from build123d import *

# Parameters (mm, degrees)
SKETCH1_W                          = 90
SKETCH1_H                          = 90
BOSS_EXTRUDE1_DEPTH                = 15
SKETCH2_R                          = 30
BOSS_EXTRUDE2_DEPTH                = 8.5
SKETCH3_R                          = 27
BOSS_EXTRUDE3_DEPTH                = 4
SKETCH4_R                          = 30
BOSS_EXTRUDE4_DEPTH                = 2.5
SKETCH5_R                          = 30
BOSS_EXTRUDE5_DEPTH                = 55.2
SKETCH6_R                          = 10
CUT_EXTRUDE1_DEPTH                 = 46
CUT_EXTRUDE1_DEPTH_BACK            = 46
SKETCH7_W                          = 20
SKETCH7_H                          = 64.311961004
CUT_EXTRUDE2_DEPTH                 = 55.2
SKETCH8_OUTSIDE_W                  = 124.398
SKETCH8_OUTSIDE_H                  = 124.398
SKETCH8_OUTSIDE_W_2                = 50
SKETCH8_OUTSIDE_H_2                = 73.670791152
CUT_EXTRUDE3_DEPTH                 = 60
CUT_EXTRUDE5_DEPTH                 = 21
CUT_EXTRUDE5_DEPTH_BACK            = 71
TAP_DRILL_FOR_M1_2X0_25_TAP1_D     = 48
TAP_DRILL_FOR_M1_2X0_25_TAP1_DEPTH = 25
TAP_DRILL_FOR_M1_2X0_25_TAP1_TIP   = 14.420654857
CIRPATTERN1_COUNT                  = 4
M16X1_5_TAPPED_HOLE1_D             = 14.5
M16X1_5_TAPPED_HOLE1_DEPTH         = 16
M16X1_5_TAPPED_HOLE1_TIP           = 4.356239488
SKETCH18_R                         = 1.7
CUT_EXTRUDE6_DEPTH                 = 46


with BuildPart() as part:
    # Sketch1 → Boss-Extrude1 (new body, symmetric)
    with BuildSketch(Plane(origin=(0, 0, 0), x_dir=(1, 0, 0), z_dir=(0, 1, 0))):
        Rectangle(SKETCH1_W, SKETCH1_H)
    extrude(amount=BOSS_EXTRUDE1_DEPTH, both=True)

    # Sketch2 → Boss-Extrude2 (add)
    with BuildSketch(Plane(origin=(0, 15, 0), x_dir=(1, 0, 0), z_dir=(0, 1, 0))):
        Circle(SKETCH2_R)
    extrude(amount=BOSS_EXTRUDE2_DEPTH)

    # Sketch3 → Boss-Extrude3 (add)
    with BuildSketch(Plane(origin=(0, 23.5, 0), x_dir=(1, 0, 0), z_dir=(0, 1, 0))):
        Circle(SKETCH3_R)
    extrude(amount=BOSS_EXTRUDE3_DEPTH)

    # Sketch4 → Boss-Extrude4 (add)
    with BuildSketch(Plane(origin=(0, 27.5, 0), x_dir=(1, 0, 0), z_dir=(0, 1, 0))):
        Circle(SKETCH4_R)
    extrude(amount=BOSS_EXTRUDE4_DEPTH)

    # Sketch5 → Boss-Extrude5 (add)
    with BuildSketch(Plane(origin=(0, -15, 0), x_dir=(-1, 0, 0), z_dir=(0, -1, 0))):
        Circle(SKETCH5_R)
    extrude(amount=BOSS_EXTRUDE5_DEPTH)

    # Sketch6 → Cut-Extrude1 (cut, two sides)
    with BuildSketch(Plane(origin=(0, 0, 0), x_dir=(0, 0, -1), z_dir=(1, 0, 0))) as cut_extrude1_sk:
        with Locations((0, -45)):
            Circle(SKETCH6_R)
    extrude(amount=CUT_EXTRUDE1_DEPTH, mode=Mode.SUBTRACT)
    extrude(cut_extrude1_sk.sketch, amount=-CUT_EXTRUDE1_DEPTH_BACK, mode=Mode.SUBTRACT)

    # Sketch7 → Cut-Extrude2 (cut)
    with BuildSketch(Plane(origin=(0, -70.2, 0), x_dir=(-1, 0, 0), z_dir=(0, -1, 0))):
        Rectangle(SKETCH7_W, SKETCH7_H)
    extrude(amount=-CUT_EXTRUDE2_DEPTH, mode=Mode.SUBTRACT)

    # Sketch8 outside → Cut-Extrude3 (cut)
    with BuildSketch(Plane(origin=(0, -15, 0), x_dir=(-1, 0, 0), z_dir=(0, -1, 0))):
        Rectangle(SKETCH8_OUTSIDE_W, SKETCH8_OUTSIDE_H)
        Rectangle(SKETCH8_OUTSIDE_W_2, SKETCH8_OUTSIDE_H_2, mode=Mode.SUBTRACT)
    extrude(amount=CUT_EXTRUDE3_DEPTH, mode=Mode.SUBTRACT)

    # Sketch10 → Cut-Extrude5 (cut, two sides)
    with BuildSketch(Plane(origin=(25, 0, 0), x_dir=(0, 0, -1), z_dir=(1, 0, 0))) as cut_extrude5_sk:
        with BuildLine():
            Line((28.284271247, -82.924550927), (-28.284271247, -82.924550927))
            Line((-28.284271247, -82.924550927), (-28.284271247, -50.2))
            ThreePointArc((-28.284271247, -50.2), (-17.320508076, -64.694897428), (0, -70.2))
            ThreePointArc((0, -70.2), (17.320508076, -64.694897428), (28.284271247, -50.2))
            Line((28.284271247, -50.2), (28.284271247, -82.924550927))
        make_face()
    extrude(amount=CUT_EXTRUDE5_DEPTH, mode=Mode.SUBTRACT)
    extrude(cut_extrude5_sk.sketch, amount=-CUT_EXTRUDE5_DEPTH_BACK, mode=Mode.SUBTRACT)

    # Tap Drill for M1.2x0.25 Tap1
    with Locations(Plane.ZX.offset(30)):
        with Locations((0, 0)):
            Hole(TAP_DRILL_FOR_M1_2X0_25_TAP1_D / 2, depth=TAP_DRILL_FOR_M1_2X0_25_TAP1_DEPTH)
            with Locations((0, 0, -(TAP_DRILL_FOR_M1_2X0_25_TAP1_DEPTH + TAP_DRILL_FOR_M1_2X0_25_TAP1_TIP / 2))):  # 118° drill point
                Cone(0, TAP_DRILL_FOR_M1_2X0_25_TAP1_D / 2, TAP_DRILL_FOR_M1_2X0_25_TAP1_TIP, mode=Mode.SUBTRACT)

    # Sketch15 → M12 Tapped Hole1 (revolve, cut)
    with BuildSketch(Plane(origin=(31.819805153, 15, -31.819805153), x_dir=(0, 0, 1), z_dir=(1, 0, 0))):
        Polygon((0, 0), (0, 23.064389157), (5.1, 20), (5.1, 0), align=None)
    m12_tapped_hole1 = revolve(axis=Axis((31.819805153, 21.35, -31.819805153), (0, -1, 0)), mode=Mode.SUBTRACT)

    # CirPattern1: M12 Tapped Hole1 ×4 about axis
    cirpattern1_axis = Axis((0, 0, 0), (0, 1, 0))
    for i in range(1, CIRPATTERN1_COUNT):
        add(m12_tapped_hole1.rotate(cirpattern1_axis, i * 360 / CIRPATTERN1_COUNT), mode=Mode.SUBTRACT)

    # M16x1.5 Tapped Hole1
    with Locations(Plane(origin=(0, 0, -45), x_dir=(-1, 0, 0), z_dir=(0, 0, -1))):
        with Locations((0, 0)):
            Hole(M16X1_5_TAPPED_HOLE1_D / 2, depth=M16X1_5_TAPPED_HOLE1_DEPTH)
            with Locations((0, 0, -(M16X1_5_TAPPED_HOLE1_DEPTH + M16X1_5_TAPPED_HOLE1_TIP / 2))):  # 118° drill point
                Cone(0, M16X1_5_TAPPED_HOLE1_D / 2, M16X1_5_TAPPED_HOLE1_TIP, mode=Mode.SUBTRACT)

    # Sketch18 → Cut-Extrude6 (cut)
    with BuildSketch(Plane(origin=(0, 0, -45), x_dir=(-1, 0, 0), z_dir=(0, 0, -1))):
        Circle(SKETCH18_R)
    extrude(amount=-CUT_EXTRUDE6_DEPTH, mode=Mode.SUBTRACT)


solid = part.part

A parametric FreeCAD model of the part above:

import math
import FreeCAD as App
import Part
import Sketcher
from FreeCAD import Vector
Q = App.Units.Quantity

doc = App.newDocument("Part")
body = doc.addObject("PartDesign::Body", "Body")

# Sketch on XZ plane
sketch1 = body.newObject("Sketcher::SketchObject", "Sketch")
sketch1.AttachmentSupport = (doc.getObject("XZ_Plane"), [""])
sketch1.MapMode = "FlatFace"
sketch1.addGeometry([
    Part.LineSegment(Vector(-45, -45, 0), Vector(-45, 45, 0)),
    Part.LineSegment(Vector(-45, 45, 0), Vector(45, 45, 0)),
    Part.LineSegment(Vector(45, 45, 0), Vector(45, -45, 0)),
    Part.LineSegment(Vector(45, -45, 0), Vector(-45, -45, 0)),
], False)
sketch1.addConstraint([
    Sketcher.Constraint("Coincident", 0, 2, 1, 1),
    Sketcher.Constraint("Coincident", 1, 2, 2, 1),
    Sketcher.Constraint("Coincident", 2, 2, 3, 1),
    Sketcher.Constraint("Coincident", 3, 2, 0, 1),
    Sketcher.Constraint("Vertical", 0),
    Sketcher.Constraint("Horizontal", 1),
    Sketcher.Constraint("Vertical", 2),
    Sketcher.Constraint("Horizontal", 3),
    Sketcher.Constraint("Symmetric", 0, 2, 2, 2, -1, 1),
    Sketcher.Constraint("Equal", 3, 0),
    Sketcher.Constraint("DistanceX", 1, 1, 1, 2, Q("90 mm")),
])
pad1 = body.newObject("PartDesign::Pad", "Pad")
pad1.Profile = sketch1
pad1.Length = 30
pad1.Midplane = True

# Sketch on XZ plane
sketch2 = body.newObject("Sketcher::SketchObject", "Sketch001")
sketch2.AttachmentSupport = (doc.getObject("XZ_Plane"), [""])
sketch2.MapMode = "FlatFace"
sketch2.AttachmentOffset = App.Placement(Vector(0, 0, -15), App.Rotation())
sketch2.addGeometry(Part.Circle(Vector(0, 0, 0), Vector(0, 0, 1), 30), False)
sketch2.addConstraint([
    Sketcher.Constraint("Coincident", 0, 3, -1, 1),
    Sketcher.Constraint("Diameter", 0, Q("60 mm")),
])
pad2 = body.newObject("PartDesign::Pad", "Pad001")
pad2.Profile = sketch2
pad2.Length = 8.5
pad2.Reversed = True

# Sketch on XZ plane
sketch3 = body.newObject("Sketcher::SketchObject", "Sketch002")
sketch3.AttachmentSupport = (doc.getObject("XZ_Plane"), [""])
sketch3.MapMode = "FlatFace"
sketch3.AttachmentOffset = App.Placement(Vector(0, 0, -23.5), App.Rotation())
sketch3.addGeometry(Part.Circle(Vector(0, 0, 0), Vector(0, 0, 1), 27), False)
sketch3.addConstraint([
    Sketcher.Constraint("Coincident", 0, 3, -1, 1),
    Sketcher.Constraint("Diameter", 0, Q("54 mm")),
])
pad3 = body.newObject("PartDesign::Pad", "Pad002")
pad3.Profile = sketch3
pad3.Length = 4
pad3.Reversed = True

# Sketch on XZ plane
sketch4 = body.newObject("Sketcher::SketchObject", "Sketch003")
sketch4.AttachmentSupport = (doc.getObject("XZ_Plane"), [""])
sketch4.MapMode = "FlatFace"
sketch4.AttachmentOffset = App.Placement(Vector(0, 0, -27.5), App.Rotation())
sketch4.addGeometry(Part.Circle(Vector(0, 0, 0), Vector(0, 0, 1), 30), False)
sketch4.addConstraint([
    Sketcher.Constraint("Coincident", 0, 3, -1, 1),
    Sketcher.Constraint("Diameter", 0, Q("60 mm")),
])
pad4 = body.newObject("PartDesign::Pad", "Pad003")
pad4.Profile = sketch4
pad4.Length = 2.5
pad4.Reversed = True

# Sketch on XZ plane
sketch5 = body.newObject("Sketcher::SketchObject", "Sketch004")
sketch5.AttachmentSupport = (doc.getObject("XZ_Plane"), [""])
sketch5.MapMode = "FlatFace"
sketch5.AttachmentOffset = App.Placement(Vector(0, 0, 15), App.Rotation())
sketch5.addGeometry(Part.Circle(Vector(0, 0, 0), Vector(0, 0, 1), 30), False)
sketch5.addConstraint([
    Sketcher.Constraint("Coincident", 0, 3, -1, 1),
    Sketcher.Constraint("Diameter", 0, Q("60 mm")),
])
pad5 = body.newObject("PartDesign::Pad", "Pad004")
pad5.Profile = sketch5
pad5.Length = 55.2

# Sketch on YZ plane
sketch6 = body.newObject("Sketcher::SketchObject", "Sketch005")
sketch6.AttachmentSupport = (doc.getObject("YZ_Plane"), [""])
sketch6.MapMode = "FlatFace"
sketch6.addGeometry(Part.Circle(Vector(-45, 0, 0), Vector(0, 0, 1), 10), False)
sketch6.addConstraint([
    Sketcher.Constraint("PointOnObject", 0, 3, -1),
    Sketcher.Constraint("Diameter", 0, Q("20 mm")),
    Sketcher.Constraint("DistanceX", 0, 3, -1, 1, Q("45 mm")),
])
pocket1 = body.newObject("PartDesign::Pocket", "Pocket")
pocket1.Profile = sketch6
pocket1.Type = "ThroughAll"
pocket1.Midplane = True

# Sketch on XZ plane
sketch7 = body.newObject("Sketcher::SketchObject", "Sketch006")
sketch7.AttachmentSupport = (doc.getObject("XZ_Plane"), [""])
sketch7.MapMode = "FlatFace"
sketch7.AttachmentOffset = App.Placement(Vector(0, 0, 70.2), App.Rotation())
sketch7.addGeometry([
    Part.LineSegment(Vector(10, -32, 0), Vector(10, 32, 0)),
    Part.LineSegment(Vector(10, 32, 0), Vector(-10, 32, 0)),
    Part.LineSegment(Vector(-10, 32, 0), Vector(-10, -32, 0)),
    Part.LineSegment(Vector(-10, -32, 0), Vector(10, -32, 0)),
], False)
sketch7.addConstraint([
    Sketcher.Constraint("Coincident", 0, 2, 1, 1),
    Sketcher.Constraint("Coincident", 1, 2, 2, 1),
    Sketcher.Constraint("Coincident", 2, 2, 3, 1),
    Sketcher.Constraint("Coincident", 3, 2, 0, 1),
    Sketcher.Constraint("Vertical", 0),
    Sketcher.Constraint("Horizontal", 1),
    Sketcher.Constraint("Vertical", 2),
    Sketcher.Constraint("Horizontal", 3),
    Sketcher.Constraint("Symmetric", 0, 2, 2, 2, -1, 1),
    Sketcher.Constraint("DistanceX", 1, 2, 1, 1, Q("20 mm")),
    Sketcher.Constraint("DistanceY", 0, 1, 0, 2, Q("64.311961 mm")),
])
pocket2 = body.newObject("PartDesign::Pocket", "Pocket001")
pocket2.Profile = sketch7
pocket2.Length = 55.2

# Sketch on XZ plane
sketch8 = body.newObject("Sketcher::SketchObject", "Sketch007")
sketch8.AttachmentSupport = (doc.getObject("XZ_Plane"), [""])
sketch8.MapMode = "FlatFace"
sketch8.AttachmentOffset = App.Placement(Vector(0, 0, 15), App.Rotation())
sketch8.addGeometry([
    Part.LineSegment(Vector(62, -62, 0), Vector(62, 62, 0)),  # 0
    Part.LineSegment(Vector(62, 62, 0), Vector(-62, 62, 0)),  # 1
    Part.LineSegment(Vector(-62, 62, 0), Vector(-62, -62, 0)),  # 2
    Part.LineSegment(Vector(-62, -62, 0), Vector(62, -62, 0)),  # 3
    Part.LineSegment(Vector(-25, 37, 0), Vector(25, 37, 0)),  # 4
    Part.LineSegment(Vector(25, 37, 0), Vector(25, -37, 0)),  # 5
    Part.LineSegment(Vector(25, -37, 0), Vector(-25, -37, 0)),  # 6
    Part.LineSegment(Vector(-25, -37, 0), Vector(-25, 37, 0)),  # 7
], False)
sketch8.addConstraint([
    Sketcher.Constraint("Coincident", 0, 2, 1, 1),
    Sketcher.Constraint("Coincident", 1, 2, 2, 1),
    Sketcher.Constraint("Coincident", 2, 2, 3, 1),
    Sketcher.Constraint("Coincident", 3, 2, 0, 1),
    Sketcher.Constraint("Coincident", 4, 2, 5, 1),
    Sketcher.Constraint("Coincident", 5, 2, 6, 1),
    Sketcher.Constraint("Coincident", 6, 2, 7, 1),
    Sketcher.Constraint("Coincident", 7, 2, 4, 1),
    Sketcher.Constraint("Vertical", 0),
    Sketcher.Constraint("Horizontal", 1),
    Sketcher.Constraint("Vertical", 2),
    Sketcher.Constraint("Horizontal", 3),
    Sketcher.Constraint("Horizontal", 4),
    Sketcher.Constraint("Vertical", 5),
    Sketcher.Constraint("Horizontal", 6),
    Sketcher.Constraint("Vertical", 7),
    Sketcher.Constraint("Symmetric", 0, 2, 2, 2, -1, 1),
    Sketcher.Constraint("Symmetric", 4, 2, 6, 2, -1, 1),
    Sketcher.Constraint("Equal", 3, 0),
    Sketcher.Constraint("DistanceX", 4, 1, 4, 2, Q("50 mm")),
    Sketcher.Constraint("DistanceX", 1, 2, 1, 1, Q("124.398 mm")),
    Sketcher.Constraint("DistanceY", 5, 2, 5, 1, Q("73.670791 mm")),
])
pocket3 = body.newObject("PartDesign::Pocket", "Pocket002")
pocket3.Profile = sketch8
pocket3.Length = 60
pocket3.Reversed = True

# Sketch on YZ plane
sketch9 = body.newObject("Sketcher::SketchObject", "Sketch008")
sketch9.AttachmentSupport = (doc.getObject("YZ_Plane"), [""])
sketch9.MapMode = "FlatFace"
sketch9.AttachmentOffset = App.Placement(Vector(0, 0, 25), App.Rotation())
sketch9.addGeometry([
    Part.LineSegment(Vector(-83, 28, 0), Vector(-83, -28, 0)),  # 0
    Part.LineSegment(Vector(-83, -28, 0), Vector(-50, -28, 0)),  # 1
    Part.ArcOfCircle(Part.Circle(Vector(-40, 0, 0), Vector(0, 0, 1), 30), math.radians(180), math.radians(251)),  # 2
    Part.ArcOfCircle(Part.Circle(Vector(-40, 0, 0), Vector(0, 0, 1), 30), math.radians(109), math.radians(180)),  # 3
    Part.LineSegment(Vector(-50, 28, 0), Vector(-83, 28, 0)),  # 4
], False)
sketch9.addConstraint([
    Sketcher.Constraint("Coincident", 0, 2, 1, 1),
    Sketcher.Constraint("Coincident", 1, 2, 2, 2),
    Sketcher.Constraint("Tangent", 2, 1, 3, 2),
    Sketcher.Constraint("Coincident", 3, 1, 4, 1),
    Sketcher.Constraint("Coincident", 4, 2, 0, 1),
    Sketcher.Constraint("Vertical", 0),
    Sketcher.Constraint("Horizontal", 1),
    Sketcher.Constraint("Horizontal", 4),
    Sketcher.Constraint("Equal", 2, 3),
    Sketcher.Constraint("Symmetric", 1, 2, 3, 1, -1),
    Sketcher.Constraint("PointOnObject", 2, 1, -1),
    Sketcher.Constraint("Radius", 2, Q("30 mm")),
    Sketcher.Constraint("DistanceX", 1, 2, 2, 3, Q("10 mm")),
    Sketcher.Constraint("DistanceX", 2, 3, -1, 1, Q("40.2 mm")),
    Sketcher.Constraint("DistanceX", 1, 1, 1, 2, Q("32.724551 mm")),
])
pocket4 = body.newObject("PartDesign::Pocket", "Pocket003")
pocket4.Profile = sketch9
pocket4.Type = "ThroughAll"
pocket4.Midplane = True

# Sketch on XZ plane
sketch10 = body.newObject("Sketcher::SketchObject", "Sketch009")
sketch10.AttachmentSupport = (doc.getObject("XZ_Plane"), [""])
sketch10.MapMode = "FlatFace"
sketch10.AttachmentOffset = App.Placement(Vector(0, 0, -30), App.Rotation())
sketch10.addGeometry(Part.Circle(Vector(0, 0, 0), Vector(0, 0, 1), 24), False)
sketch10.addConstraint([
    Sketcher.Constraint("Coincident", 0, 3, -1, 1),
    Sketcher.Constraint("Diameter", 0, Q("48 mm")),
])
doc.recompute()
hole = body.newObject("PartDesign::Hole", "Hole")
hole.Profile = sketch10
hole.ThreadType = "None"
hole.Diameter = 48
hole.DepthType = "Dimension"
hole.Depth = 25
hole.DrillPoint = "Angled"
hole.DrillPointAngle = 118
hole.Reversed = True

# Sketch on YZ plane
sketch11 = body.newObject("Sketcher::SketchObject", "Sketch010")
sketch11.AttachmentSupport = (doc.getObject("YZ_Plane"), [""])
sketch11.MapMode = "FlatFace"
sketch11.AttachmentOffset = App.Placement(Vector(0, 0, 31.819805), App.Rotation())
sketch11.addGeometry([
    Part.LineSegment(Vector(-8, -32, 0), Vector(15, -32, 0)),
    Part.LineSegment(Vector(15, -32, 0), Vector(15, -27, 0)),
    Part.LineSegment(Vector(15, -27, 0), Vector(-5, -27, 0)),
    Part.LineSegment(Vector(-5, -27, 0), Vector(-8, -32, 0)),
], False)
sketch11.addGeometry(Part.LineSegment(Vector(15, -32, 0), Vector(-8, -32, 0)), True)  # axis
sketch11.addConstraint([
    Sketcher.Constraint("Coincident", 0, 2, 1, 1),
    Sketcher.Constraint("Coincident", 1, 2, 2, 1),
    Sketcher.Constraint("Coincident", 2, 2, 3, 1),
    Sketcher.Constraint("Coincident", 3, 2, 0, 1),
    Sketcher.Constraint("Horizontal", 0),
    Sketcher.Constraint("Vertical", 1),
    Sketcher.Constraint("Horizontal", 2),
    Sketcher.Constraint("Horizontal", 4),
    Sketcher.Constraint("Coincident", 4, 1, 0, 2),
    Sketcher.Constraint("Equal", 0, 4),
    Sketcher.Constraint("DistanceX", 2, 2, 2, 1, Q("20 mm")),
    Sketcher.Constraint("Angle", 3, Q("-121 deg")),
    Sketcher.Constraint("DistanceY", 1, 1, 1, 2, Q("5.1 mm")),
    Sketcher.Constraint("DistanceX", -1, 1, 0, 2, Q("15 mm")),
    Sketcher.Constraint("DistanceY", 0, 2, -1, 1, Q("31.819805 mm")),
])
groove = body.newObject("PartDesign::Groove", "Groove")
groove.Profile = sketch11
groove.ReferenceAxis = (sketch11, ["Axis0"])
groove.Angle = 360
doc.recompute()

polarpattern = body.newObject("PartDesign::PolarPattern", "PolarPattern")
polarpattern.Originals = [groove]
polarpattern.Axis = (doc.getObject("Y_Axis"), [""])
polarpattern.Angle = 360
polarpattern.Occurrences = 4
body.Tip = polarpattern

# Sketch on XY plane
sketch12 = body.newObject("Sketcher::SketchObject", "Sketch011")
sketch12.AttachmentSupport = (doc.getObject("XY_Plane"), [""])
sketch12.MapMode = "FlatFace"
sketch12.AttachmentOffset = App.Placement(Vector(0, 0, -45), App.Rotation())
sketch12.addGeometry(Part.Circle(Vector(0, 0, 0), Vector(0, 0, 1), 7), False)
sketch12.addConstraint([
    Sketcher.Constraint("Coincident", 0, 3, -1, 1),
    Sketcher.Constraint("Diameter", 0, Q("14.5 mm")),
])
doc.recompute()
hole2 = body.newObject("PartDesign::Hole", "Hole001")
hole2.Profile = sketch12
hole2.ThreadType = "None"
hole2.Diameter = 14.5
hole2.DepthType = "Dimension"
hole2.Depth = 16
hole2.DrillPoint = "Angled"
hole2.DrillPointAngle = 118
hole2.Reversed = True

# Sketch on XY plane
sketch13 = body.newObject("Sketcher::SketchObject", "Sketch012")
sketch13.AttachmentSupport = (doc.getObject("XY_Plane"), [""])
sketch13.MapMode = "FlatFace"
sketch13.AttachmentOffset = App.Placement(Vector(0, 0, -45), App.Rotation())
sketch13.addGeometry(Part.Circle(Vector(0, 0, 0), Vector(0, 0, 1), 1.7), False)
sketch13.addConstraint([
    Sketcher.Constraint("Coincident", 0, 3, -1, 1),
    Sketcher.Constraint("Diameter", 0, Q("3.4 mm")),
])
pocket5 = body.newObject("PartDesign::Pocket", "Pocket004")
pocket5.Profile = sketch13
pocket5.Length = 46
pocket5.Reversed = True

doc.recompute()
